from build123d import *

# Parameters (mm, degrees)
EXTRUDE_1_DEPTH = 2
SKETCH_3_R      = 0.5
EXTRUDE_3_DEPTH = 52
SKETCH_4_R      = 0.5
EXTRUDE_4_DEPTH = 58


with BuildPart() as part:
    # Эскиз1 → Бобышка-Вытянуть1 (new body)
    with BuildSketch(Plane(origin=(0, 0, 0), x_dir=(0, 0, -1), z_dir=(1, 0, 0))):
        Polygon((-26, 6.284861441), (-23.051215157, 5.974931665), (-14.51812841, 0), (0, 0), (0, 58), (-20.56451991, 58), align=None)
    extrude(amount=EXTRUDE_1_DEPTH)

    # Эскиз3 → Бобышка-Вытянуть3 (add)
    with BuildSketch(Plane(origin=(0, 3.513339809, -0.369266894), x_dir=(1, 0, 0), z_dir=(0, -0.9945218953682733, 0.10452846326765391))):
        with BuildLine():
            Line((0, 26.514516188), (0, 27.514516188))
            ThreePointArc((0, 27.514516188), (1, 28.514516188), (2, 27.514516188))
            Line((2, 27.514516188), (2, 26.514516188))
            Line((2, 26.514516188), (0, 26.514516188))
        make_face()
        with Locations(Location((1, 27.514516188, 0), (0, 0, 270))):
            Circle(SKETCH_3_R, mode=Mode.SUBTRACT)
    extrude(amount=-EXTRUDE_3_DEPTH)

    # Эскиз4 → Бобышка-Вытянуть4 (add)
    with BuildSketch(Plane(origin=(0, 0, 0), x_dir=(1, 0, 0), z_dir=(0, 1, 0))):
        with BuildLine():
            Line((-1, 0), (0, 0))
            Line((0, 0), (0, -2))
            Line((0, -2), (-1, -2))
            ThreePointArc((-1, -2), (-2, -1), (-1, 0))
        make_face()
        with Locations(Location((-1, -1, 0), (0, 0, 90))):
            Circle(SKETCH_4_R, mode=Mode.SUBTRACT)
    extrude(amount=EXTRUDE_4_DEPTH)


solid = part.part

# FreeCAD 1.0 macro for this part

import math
import FreeCAD as App
import Part
import Sketcher

V = App.Vector
Q = App.Units.Quantity

doc = App.newDocument("Part")
body = doc.addObject("PartDesign::Body", "Body")

sketch1 = body.newObject("Sketcher::SketchObject", "Sketch")
sketch1.AttachmentSupport = (doc.getObject("YZ_Plane"), [""])
sketch1.MapMode = "FlatFace"
sketch1.addGeometry(Part.LineSegment(V(6.3, 26, 0), V(6, 23.1, 0)), False)
sketch1.addGeometry(Part.LineSegment(V(6, 23.1, 0), V(0, 14.5, 0)), False)
sketch1.addGeometry(Part.LineSegment(V(0, 14.5, 0), V(0, 0, 0)), False)
sketch1.addGeometry(Part.LineSegment(V(0, 0, 0), V(58, 0, 0)), False)
sketch1.addGeometry(Part.LineSegment(V(58, 0, 0), V(58, 20.6, 0)), False)
sketch1.addGeometry(Part.LineSegment(V(58, 20.6, 0), V(6.3, 26, 0)), False)
sketch1.addConstraint(Sketcher.Constraint("Coincident", 0, 2, 1, 1))
sketch1.addConstraint(Sketcher.Constraint("Coincident", 1, 2, 2, 1))
sketch1.addConstraint(Sketcher.Constraint("Coincident", 2, 2, 3, 1))
sketch1.addConstraint(Sketcher.Constraint("Coincident", 3, 2, 4, 1))
sketch1.addConstraint(Sketcher.Constraint("Coincident", 4, 2, 5, 1))
sketch1.addConstraint(Sketcher.Constraint("Coincident", 5, 2, 0, 1))
sketch1.addConstraint(Sketcher.Constraint("Vertical", 2))
sketch1.addConstraint(Sketcher.Constraint("Horizontal", 3))
sketch1.addConstraint(Sketcher.Constraint("Vertical", 4))
sketch1.addConstraint(Sketcher.Constraint("Coincident", 2, 2, -1, 1))
sketch1.addConstraint(Sketcher.Constraint("Perpendicular", 0, 5))
sketch1.addConstraint(Sketcher.Constraint("DistanceX", 3, 1, 3, 2, 58.0))
sketch1.addConstraint(Sketcher.Constraint("Angle", 0, Q("-96 deg")))
sketch1.addConstraint(Sketcher.Constraint("Angle", 1, Q("-125 deg")))
sketch1.addConstraint(Sketcher.Constraint("Distance", 5, 52.0))
sketch1.addConstraint(Sketcher.Constraint("DistanceY", -1, 1, 5, 2, 26.0))
sketch1.addConstraint(Sketcher.Constraint("DistanceY", 2, 2, 2, 1, 14.518128))
pad1 = body.newObject("PartDesign::Pad", "Pad")
pad1.Profile = sketch1
pad1.Length = 2

sketch2 = body.newObject("Sketcher::SketchObject", "Sketch001")
sketch2.Placement = App.Placement(V(0, 3.51334, -0.369267), App.Rotation(V(1, 0, 0), V(0, 0.104528463, 0.994521895), V(0, -0.994521895, 0.104528463), "ZXY"))
sketch2.addGeometry(Part.LineSegment(V(0, 27.5, 0), V(0, 26.5, 0)), False)
sketch2.addGeometry(Part.LineSegment(V(0, 26.5, 0), V(2, 26.5, 0)), False)
sketch2.addGeometry(Part.LineSegment(V(2, 26.5, 0), V(2, 27.5, 0)), False)
sketch2.addGeometry(Part.ArcOfCircle(Part.Circle(V(1, 27.5, 0), V(0, 0, 1), 1), math.radians(0), math.radians(180)), False)
sketch2.addGeometry(Part.Circle(V(1, 27.5, 0), V(0, 0, 1), 0.5), False)
sketch2.addConstraint(Sketcher.Constraint("Coincident", 0, 2, 1, 1))
sketch2.addConstraint(Sketcher.Constraint("Coincident", 1, 2, 2, 1))
sketch2.addConstraint(Sketcher.Constraint("Tangent", 2, 2, 3, 1))
sketch2.addConstraint(Sketcher.Constraint("Tangent", 3, 2, 0, 1))
sketch2.addConstraint(Sketcher.Constraint("Vertical", 0))
sketch2.addConstraint(Sketcher.Constraint("Horizontal", 1))
sketch2.addConstraint(Sketcher.Constraint("Vertical", 2))
sketch2.addConstraint(Sketcher.Constraint("Coincident", 4, 3, 3, 3))
sketch2.addConstraint(Sketcher.Constraint("PointOnObject", 0, 2, -2))
sketch2.addConstraint(Sketcher.Constraint("Diameter", 4, 1.0))
sketch2.addConstraint(Sketcher.Constraint("Radius", 3, 1.0))
sketch2.addConstraint(Sketcher.Constraint("DistanceY", 0, 2, 0, 1, 1.0))
sketch2.addConstraint(Sketcher.Constraint("DistanceY", -1, 1, 3, 3, 27.514516))
pad2 = body.newObject("PartDesign::Pad", "Pad001")
pad2.Profile = sketch2
pad2.Length = 52
pad2.Reversed = True

sketch3 = body.newObject("Sketcher::SketchObject", "Sketch002")
sketch3.AttachmentSupport = (doc.getObject("XZ_Plane"), [""])
sketch3.MapMode = "FlatFace"
sketch3.addGeometry(Part.LineSegment(V(0, 0, 0), V(-1, 0, 0)), False)
sketch3.addGeometry(Part.ArcOfCircle(Part.Circle(V(-1, 1, 0), V(0, 0, 1), 1), math.radians(90), math.radians(270)), False)
sketch3.addGeometry(Part.LineSegment(V(-1, 2, 0), V(0, 2, 0)), False)
sketch3.addGeometry(Part.LineSegment(V(0, 2, 0), V(0, 0, 0)), False)
sketch3.addGeometry(Part.Circle(V(-1, 1, 0), V(0, 0, 1), 0.5), False)
sketch3.addConstraint(Sketcher.Constraint("Tangent", 0, 2, 1, 2))
sketch3.addConstraint(Sketcher.Constraint("Tangent", 1, 1, 2, 1))
sketch3.addConstraint(Sketcher.Constraint("Coincident", 2, 2, 3, 1))
sketch3.addConstraint(Sketcher.Constraint("Coincident", 3, 2, 0, 1))
sketch3.addConstraint(Sketcher.Constraint("Horizontal", 0))
sketch3.addConstraint(Sketcher.Constraint("Horizontal", 2))
sketch3.addConstraint(Sketcher.Constraint("Vertical", 3))
sketch3.addConstraint(Sketcher.Constraint("Coincident", 3, 2, -1, 1))
sketch3.addConstraint(Sketcher.Constraint("Coincident", 4, 3, 1, 3))
sketch3.addConstraint(Sketcher.Constraint("Diameter", 4, 1.0))
sketch3.addConstraint(Sketcher.Constraint("Radius", 1, 1.0))
sketch3.addConstraint(Sketcher.Constraint("DistanceX", 0, 2, 0, 1, 1.0))
pad3 = body.newObject("PartDesign::Pad", "Pad002")
pad3.Profile = sketch3
pad3.Length = 58
pad3.Reversed = True

doc.recompute()
